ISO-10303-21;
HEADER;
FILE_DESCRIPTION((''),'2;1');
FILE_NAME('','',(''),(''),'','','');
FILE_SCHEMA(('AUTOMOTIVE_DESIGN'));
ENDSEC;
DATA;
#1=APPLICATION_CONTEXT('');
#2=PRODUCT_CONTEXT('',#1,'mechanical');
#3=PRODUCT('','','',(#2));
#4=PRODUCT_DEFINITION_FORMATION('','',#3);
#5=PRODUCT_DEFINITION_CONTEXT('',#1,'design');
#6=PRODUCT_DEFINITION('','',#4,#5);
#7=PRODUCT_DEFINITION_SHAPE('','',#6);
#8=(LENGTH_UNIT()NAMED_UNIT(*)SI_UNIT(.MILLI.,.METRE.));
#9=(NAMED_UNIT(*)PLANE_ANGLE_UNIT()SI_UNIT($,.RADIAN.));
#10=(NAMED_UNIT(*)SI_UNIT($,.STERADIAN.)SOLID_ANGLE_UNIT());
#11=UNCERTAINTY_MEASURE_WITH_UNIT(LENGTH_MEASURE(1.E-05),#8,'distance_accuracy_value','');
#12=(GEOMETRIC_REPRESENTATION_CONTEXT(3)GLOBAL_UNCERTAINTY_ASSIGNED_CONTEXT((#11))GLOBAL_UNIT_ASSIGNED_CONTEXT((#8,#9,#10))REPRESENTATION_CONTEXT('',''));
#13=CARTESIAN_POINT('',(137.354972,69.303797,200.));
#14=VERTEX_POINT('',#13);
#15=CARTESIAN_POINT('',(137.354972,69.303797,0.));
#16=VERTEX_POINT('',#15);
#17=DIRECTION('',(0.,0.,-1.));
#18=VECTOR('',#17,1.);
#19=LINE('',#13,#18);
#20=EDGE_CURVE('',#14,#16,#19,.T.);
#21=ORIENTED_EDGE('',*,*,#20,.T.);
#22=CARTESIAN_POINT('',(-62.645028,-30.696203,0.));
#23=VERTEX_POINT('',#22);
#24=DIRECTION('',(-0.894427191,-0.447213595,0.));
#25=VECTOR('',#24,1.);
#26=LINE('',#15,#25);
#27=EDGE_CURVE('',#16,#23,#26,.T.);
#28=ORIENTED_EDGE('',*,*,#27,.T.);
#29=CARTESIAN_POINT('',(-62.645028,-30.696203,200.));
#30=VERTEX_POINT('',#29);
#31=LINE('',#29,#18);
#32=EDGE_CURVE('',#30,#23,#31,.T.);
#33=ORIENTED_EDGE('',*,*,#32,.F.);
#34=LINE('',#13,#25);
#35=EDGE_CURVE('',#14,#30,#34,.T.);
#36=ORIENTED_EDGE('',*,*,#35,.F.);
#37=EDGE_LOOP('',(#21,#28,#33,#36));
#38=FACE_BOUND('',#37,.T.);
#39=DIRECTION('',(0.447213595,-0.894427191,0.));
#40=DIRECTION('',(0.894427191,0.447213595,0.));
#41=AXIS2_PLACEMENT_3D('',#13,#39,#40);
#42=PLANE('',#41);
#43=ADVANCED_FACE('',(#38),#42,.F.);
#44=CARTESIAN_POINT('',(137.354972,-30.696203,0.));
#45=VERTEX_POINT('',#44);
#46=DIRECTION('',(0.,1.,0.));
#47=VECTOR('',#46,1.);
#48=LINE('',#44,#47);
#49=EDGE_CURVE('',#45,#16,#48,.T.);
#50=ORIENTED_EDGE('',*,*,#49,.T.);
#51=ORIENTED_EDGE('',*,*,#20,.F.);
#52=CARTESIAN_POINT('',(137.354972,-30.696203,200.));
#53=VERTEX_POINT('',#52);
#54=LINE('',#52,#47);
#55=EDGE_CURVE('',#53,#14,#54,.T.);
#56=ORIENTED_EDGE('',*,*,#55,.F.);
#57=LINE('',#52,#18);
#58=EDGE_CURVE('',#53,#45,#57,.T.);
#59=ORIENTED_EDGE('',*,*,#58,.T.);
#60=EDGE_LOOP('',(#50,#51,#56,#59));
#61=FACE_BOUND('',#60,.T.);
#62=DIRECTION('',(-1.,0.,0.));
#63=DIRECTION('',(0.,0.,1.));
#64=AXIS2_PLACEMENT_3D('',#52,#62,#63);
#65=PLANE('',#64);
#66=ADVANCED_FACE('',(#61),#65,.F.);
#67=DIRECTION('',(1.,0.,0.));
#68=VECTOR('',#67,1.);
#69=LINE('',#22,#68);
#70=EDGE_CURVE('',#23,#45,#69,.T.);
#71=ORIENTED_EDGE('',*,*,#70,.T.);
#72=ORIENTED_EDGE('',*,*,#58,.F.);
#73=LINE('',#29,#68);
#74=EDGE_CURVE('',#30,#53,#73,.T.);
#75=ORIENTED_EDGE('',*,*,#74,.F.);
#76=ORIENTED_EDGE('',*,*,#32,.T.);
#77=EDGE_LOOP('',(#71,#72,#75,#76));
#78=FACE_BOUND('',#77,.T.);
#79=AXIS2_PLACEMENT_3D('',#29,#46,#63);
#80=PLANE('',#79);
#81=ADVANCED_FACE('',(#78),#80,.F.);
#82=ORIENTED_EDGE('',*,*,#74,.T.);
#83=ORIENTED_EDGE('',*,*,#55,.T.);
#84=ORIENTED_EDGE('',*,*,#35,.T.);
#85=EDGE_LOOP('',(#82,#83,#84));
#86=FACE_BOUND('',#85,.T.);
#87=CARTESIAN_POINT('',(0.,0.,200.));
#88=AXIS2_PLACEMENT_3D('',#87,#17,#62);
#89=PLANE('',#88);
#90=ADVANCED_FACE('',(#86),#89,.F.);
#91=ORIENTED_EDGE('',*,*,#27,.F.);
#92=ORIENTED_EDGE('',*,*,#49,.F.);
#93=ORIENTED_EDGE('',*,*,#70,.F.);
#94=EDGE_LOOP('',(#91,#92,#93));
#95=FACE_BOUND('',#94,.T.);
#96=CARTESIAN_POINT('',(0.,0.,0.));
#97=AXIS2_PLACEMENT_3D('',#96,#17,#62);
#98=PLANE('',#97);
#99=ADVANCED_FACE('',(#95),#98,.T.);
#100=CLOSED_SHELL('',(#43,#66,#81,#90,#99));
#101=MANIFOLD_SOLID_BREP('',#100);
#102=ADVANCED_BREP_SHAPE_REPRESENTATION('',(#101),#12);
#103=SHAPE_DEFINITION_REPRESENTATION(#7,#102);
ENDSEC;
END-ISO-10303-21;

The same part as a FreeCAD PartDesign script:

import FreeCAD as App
import Part
import Sketcher

V = App.Vector

doc = App.newDocument("Part")
body = doc.addObject("PartDesign::Body", "Body")

# Sketch on XY plane
sketch1 = body.newObject("Sketcher::SketchObject", "Sketch")
sketch1.AttachmentSupport = (doc.getObject("XY_Plane"), [""])
sketch1.MapMode = "FlatFace"
sketch1.addGeometry([
    Part.LineSegment(V(-63, -31, 0), V(137, -31, 0)),
    Part.LineSegment(V(137, -31, 0), V(137, 69, 0)),
    Part.LineSegment(V(137, 69, 0), V(-63, -31, 0)),
], False)
sketch1.addConstraint([
    Sketcher.Constraint("Coincident", 0, 2, 1, 1),
    Sketcher.Constraint("Coincident", 1, 2, 2, 1),
    Sketcher.Constraint("Coincident", 2, 2, 0, 1),
    Sketcher.Constraint("Horizontal", 0),
    Sketcher.Constraint("Vertical", 1),
    Sketcher.Constraint("DistanceX", 0, 1, 0, 2, 200.0),
    Sketcher.Constraint("DistanceY", 1, 1, 1, 2, 100.0),
    Sketcher.Constraint("DistanceX", -1, 1, 0, 2, 137.354972),
    Sketcher.Constraint("DistanceY", 0, 2, -1, 1, 30.696203),
])
pad1 = body.newObject("PartDesign::Pad", "Pad")
pad1.Profile = sketch1
pad1.Length = 200

doc.recompute()
